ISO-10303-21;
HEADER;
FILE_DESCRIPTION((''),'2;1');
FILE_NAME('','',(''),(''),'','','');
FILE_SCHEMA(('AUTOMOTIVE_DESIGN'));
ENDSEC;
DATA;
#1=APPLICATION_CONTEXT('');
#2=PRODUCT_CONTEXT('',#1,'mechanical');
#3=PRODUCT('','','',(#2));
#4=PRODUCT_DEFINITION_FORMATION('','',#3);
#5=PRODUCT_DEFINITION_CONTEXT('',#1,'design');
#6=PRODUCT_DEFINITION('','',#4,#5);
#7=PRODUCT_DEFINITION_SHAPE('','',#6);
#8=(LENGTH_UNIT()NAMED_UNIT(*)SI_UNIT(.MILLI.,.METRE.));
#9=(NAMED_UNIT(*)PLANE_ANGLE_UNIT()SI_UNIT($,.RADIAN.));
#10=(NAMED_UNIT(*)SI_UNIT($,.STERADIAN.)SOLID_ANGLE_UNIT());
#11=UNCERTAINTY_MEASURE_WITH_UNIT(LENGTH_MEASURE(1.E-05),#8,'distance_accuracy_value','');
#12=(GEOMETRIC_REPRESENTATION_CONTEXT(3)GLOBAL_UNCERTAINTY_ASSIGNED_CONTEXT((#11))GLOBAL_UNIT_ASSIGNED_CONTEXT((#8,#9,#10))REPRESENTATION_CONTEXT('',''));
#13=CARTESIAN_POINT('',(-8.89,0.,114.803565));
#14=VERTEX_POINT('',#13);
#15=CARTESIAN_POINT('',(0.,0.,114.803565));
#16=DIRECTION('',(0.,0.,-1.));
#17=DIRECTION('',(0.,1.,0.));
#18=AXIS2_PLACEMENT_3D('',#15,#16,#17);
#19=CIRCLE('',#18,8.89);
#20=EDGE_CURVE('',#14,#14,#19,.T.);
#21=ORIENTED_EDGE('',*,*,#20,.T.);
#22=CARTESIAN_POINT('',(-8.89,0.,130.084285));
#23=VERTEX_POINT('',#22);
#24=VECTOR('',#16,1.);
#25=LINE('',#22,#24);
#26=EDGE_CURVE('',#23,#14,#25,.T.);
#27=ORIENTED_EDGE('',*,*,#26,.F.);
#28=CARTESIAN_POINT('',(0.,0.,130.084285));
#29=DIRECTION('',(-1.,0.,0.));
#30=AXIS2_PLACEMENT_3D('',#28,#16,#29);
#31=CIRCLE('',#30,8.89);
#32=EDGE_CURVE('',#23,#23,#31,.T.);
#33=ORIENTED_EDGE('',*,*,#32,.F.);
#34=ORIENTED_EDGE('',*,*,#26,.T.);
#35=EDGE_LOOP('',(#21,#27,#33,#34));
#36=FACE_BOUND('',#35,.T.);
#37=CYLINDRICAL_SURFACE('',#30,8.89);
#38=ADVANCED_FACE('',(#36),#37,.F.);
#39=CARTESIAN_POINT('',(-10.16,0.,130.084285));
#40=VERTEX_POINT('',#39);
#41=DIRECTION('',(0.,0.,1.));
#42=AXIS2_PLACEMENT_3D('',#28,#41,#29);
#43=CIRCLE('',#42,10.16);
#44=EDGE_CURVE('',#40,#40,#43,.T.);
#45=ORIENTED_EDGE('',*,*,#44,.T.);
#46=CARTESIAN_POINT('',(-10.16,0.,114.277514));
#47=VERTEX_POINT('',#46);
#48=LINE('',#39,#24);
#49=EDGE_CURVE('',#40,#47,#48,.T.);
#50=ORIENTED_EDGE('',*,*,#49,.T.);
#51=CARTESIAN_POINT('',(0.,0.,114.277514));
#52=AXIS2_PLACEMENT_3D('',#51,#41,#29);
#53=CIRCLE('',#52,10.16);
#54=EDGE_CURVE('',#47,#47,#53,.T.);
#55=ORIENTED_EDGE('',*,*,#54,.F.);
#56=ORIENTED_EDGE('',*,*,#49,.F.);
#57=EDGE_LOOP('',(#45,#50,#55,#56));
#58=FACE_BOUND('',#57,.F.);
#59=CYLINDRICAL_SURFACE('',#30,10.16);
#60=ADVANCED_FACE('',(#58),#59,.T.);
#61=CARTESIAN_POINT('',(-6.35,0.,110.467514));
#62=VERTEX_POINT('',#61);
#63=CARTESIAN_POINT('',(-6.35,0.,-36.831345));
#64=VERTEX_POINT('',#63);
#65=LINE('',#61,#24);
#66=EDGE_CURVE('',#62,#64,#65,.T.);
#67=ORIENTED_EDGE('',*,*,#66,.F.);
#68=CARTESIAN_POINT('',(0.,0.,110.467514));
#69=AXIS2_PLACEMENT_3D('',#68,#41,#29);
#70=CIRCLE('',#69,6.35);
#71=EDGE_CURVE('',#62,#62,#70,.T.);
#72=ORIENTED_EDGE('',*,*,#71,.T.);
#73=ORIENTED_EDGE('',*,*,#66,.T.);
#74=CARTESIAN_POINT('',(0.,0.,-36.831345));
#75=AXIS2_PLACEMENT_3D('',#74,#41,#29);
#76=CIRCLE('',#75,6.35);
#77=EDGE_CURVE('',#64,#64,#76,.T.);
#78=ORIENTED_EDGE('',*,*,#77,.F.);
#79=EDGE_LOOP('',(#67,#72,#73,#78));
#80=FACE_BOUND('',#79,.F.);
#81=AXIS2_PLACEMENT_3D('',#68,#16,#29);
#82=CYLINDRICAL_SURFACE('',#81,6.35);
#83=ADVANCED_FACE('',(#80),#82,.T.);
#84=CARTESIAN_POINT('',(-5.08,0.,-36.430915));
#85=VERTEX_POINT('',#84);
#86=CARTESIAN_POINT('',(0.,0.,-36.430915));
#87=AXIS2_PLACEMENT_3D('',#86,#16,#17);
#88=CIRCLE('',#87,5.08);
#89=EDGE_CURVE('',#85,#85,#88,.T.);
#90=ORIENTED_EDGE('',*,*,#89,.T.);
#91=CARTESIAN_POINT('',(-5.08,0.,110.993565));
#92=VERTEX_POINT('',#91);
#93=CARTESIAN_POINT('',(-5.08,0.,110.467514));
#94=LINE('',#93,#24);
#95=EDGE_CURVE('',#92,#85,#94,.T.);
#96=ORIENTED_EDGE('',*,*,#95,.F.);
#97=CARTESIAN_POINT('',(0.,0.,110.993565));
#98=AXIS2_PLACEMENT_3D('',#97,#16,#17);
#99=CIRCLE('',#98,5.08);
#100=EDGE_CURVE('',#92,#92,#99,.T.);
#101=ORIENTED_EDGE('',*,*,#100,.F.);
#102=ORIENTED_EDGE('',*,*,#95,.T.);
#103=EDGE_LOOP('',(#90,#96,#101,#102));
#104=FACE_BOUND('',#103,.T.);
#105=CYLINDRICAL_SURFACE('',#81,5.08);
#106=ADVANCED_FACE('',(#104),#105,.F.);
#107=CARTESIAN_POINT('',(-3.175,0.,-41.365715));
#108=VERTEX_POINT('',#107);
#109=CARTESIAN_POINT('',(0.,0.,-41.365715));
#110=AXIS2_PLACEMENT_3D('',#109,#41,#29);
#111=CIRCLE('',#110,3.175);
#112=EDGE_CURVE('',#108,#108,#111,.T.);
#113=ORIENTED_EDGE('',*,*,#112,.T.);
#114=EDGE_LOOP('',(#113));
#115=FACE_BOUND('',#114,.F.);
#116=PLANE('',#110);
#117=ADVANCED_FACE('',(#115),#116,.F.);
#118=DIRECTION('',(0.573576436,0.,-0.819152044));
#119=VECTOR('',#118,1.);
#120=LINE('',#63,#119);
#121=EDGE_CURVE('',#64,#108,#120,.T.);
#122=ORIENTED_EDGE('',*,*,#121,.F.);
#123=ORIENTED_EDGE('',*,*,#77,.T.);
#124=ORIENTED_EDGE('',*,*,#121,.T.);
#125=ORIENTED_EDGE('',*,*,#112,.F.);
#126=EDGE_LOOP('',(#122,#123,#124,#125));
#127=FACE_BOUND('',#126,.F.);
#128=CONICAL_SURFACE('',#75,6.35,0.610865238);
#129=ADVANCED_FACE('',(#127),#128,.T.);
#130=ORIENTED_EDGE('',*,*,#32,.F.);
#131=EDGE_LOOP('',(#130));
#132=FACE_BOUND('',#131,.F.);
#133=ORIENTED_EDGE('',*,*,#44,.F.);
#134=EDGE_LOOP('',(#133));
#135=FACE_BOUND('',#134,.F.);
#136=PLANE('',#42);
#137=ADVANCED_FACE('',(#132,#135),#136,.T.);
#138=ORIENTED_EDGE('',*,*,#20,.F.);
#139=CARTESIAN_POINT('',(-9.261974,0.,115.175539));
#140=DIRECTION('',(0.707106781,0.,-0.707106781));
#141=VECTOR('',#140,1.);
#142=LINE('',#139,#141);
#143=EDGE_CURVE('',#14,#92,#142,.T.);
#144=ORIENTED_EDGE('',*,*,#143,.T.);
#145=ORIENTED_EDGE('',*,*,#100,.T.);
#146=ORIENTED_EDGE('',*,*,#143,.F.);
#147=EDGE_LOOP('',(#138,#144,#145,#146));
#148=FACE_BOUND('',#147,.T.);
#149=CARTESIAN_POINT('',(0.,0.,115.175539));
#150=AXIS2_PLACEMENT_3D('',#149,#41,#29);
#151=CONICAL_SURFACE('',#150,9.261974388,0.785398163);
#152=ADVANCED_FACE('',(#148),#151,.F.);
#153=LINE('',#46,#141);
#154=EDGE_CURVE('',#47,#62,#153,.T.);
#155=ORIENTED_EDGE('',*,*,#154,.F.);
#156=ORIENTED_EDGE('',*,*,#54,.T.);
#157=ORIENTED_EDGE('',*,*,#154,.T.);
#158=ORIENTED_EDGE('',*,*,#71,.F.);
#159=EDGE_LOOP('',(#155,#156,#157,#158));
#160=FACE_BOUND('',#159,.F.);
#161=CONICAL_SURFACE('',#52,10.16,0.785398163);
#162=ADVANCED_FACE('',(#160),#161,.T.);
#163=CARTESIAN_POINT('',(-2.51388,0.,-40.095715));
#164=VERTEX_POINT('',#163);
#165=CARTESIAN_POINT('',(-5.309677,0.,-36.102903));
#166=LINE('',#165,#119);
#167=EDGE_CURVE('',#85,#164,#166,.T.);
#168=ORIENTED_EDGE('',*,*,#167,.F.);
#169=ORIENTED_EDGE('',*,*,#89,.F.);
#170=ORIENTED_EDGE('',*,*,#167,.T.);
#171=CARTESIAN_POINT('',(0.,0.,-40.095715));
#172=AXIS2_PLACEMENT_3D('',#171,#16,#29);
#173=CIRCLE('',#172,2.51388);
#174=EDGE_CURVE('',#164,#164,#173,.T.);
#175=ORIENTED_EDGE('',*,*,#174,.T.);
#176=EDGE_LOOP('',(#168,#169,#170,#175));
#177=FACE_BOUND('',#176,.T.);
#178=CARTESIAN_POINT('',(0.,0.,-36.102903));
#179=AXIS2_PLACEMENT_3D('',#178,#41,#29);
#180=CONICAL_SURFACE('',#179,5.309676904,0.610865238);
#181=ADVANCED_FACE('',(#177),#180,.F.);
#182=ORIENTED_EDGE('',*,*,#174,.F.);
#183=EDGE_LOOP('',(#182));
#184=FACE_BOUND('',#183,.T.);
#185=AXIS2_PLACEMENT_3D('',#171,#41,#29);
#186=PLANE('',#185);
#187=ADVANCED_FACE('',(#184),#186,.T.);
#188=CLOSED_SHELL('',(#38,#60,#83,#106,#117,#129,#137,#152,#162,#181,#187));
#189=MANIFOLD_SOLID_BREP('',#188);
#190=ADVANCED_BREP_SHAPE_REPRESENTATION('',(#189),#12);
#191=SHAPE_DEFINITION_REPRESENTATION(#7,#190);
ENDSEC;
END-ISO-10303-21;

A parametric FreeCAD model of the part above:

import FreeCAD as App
import Part
import Sketcher
Q = App.Units.Quantity


def faces_at(feature, points):
    """Names of the faces that lie closest to the given points."""
    faces = feature.Shape.Faces
    near = lambda p: min(range(len(faces)), key=lambda i: faces[i].distToShape(Part.Vertex(*p))[0])
    return sorted({f"Face{near(p) + 1}" for p in points})


def add_polygon(sketch, points):
    """Adds a closed chain of lines whose ends are joined by coincident constraints."""
    first, n = sketch.GeometryCount, len(points)
    for a, b in zip(points, points[1:] + points[:1]):
        sketch.addGeometry(Part.LineSegment(App.Vector(*a, 0), App.Vector(*b, 0)), False)
    for i in range(n):
        sketch.addConstraint(Sketcher.Constraint("Coincident", first + i, 2, first + (i + 1) % n, 1))

doc = App.newDocument("Part")
body = doc.addObject("PartDesign::Body", "Body")

# Sketch on XZ plane
sketch1 = doc.addObject("Sketcher::SketchObject", "Sketch")
body.addObject(sketch1)
sketch1.AttachmentSupport = (doc.XZ_Plane, [""])
sketch1.MapMode = "FlatFace"
add_polygon(sketch1, [(-3.2, -41.4), (0, -41.4), (0, 130.1), (-10.2, 130.1), (-10.2, 114.3), (-6.3, 110.5), (-6.3, -36.8)])  # lines 0-6
sketch1.addConstraint([
    Sketcher.Constraint("Horizontal", 0),
    Sketcher.Constraint("Vertical", 1),
    Sketcher.Constraint("Horizontal", 2),
    Sketcher.Constraint("Vertical", 3),
    Sketcher.Constraint("Vertical", 5),
    Sketcher.Constraint("PointOnObject", 0, 2, -2),
    Sketcher.Constraint("DistanceX", 2, 2, 2, 1, Q("0.4 in")),
    Sketcher.Constraint("Angle", 4, Q("-45 deg")),
    Sketcher.Constraint("Angle", 6, Q("-55 deg")),
    Sketcher.Constraint("DistanceY", 1, 1, 1, 2, Q("6.75 in")),
    Sketcher.Constraint("DistanceX", 0, 1, 0, 2, Q("0.125 in")),
    Sketcher.Constraint("DistanceX", 4, 2, -1, 1, Q("0.25 in")),
    Sketcher.Constraint("DistanceY", 3, 2, 3, 1, 15.806772),
    Sketcher.Constraint("DistanceY", 0, 2, -1, 1, 41.365715),
])
revolution = doc.addObject("PartDesign::Revolution", "Revolution")
body.addObject(revolution)
revolution.Profile = sketch1
revolution.ReferenceAxis = (sketch1, ["V_Axis"])
revolution.Angle = 360
doc.recompute()

thickness = doc.addObject("PartDesign::Thickness", "Thickness")
body.addObject(thickness)
thickness.Base = (revolution, faces_at(revolution, [(0, 0, 130.084)]))
thickness.Value = Q("0.05 in")
thickness.Reversed = True
thickness.Join = "Intersection"

doc.recompute()
